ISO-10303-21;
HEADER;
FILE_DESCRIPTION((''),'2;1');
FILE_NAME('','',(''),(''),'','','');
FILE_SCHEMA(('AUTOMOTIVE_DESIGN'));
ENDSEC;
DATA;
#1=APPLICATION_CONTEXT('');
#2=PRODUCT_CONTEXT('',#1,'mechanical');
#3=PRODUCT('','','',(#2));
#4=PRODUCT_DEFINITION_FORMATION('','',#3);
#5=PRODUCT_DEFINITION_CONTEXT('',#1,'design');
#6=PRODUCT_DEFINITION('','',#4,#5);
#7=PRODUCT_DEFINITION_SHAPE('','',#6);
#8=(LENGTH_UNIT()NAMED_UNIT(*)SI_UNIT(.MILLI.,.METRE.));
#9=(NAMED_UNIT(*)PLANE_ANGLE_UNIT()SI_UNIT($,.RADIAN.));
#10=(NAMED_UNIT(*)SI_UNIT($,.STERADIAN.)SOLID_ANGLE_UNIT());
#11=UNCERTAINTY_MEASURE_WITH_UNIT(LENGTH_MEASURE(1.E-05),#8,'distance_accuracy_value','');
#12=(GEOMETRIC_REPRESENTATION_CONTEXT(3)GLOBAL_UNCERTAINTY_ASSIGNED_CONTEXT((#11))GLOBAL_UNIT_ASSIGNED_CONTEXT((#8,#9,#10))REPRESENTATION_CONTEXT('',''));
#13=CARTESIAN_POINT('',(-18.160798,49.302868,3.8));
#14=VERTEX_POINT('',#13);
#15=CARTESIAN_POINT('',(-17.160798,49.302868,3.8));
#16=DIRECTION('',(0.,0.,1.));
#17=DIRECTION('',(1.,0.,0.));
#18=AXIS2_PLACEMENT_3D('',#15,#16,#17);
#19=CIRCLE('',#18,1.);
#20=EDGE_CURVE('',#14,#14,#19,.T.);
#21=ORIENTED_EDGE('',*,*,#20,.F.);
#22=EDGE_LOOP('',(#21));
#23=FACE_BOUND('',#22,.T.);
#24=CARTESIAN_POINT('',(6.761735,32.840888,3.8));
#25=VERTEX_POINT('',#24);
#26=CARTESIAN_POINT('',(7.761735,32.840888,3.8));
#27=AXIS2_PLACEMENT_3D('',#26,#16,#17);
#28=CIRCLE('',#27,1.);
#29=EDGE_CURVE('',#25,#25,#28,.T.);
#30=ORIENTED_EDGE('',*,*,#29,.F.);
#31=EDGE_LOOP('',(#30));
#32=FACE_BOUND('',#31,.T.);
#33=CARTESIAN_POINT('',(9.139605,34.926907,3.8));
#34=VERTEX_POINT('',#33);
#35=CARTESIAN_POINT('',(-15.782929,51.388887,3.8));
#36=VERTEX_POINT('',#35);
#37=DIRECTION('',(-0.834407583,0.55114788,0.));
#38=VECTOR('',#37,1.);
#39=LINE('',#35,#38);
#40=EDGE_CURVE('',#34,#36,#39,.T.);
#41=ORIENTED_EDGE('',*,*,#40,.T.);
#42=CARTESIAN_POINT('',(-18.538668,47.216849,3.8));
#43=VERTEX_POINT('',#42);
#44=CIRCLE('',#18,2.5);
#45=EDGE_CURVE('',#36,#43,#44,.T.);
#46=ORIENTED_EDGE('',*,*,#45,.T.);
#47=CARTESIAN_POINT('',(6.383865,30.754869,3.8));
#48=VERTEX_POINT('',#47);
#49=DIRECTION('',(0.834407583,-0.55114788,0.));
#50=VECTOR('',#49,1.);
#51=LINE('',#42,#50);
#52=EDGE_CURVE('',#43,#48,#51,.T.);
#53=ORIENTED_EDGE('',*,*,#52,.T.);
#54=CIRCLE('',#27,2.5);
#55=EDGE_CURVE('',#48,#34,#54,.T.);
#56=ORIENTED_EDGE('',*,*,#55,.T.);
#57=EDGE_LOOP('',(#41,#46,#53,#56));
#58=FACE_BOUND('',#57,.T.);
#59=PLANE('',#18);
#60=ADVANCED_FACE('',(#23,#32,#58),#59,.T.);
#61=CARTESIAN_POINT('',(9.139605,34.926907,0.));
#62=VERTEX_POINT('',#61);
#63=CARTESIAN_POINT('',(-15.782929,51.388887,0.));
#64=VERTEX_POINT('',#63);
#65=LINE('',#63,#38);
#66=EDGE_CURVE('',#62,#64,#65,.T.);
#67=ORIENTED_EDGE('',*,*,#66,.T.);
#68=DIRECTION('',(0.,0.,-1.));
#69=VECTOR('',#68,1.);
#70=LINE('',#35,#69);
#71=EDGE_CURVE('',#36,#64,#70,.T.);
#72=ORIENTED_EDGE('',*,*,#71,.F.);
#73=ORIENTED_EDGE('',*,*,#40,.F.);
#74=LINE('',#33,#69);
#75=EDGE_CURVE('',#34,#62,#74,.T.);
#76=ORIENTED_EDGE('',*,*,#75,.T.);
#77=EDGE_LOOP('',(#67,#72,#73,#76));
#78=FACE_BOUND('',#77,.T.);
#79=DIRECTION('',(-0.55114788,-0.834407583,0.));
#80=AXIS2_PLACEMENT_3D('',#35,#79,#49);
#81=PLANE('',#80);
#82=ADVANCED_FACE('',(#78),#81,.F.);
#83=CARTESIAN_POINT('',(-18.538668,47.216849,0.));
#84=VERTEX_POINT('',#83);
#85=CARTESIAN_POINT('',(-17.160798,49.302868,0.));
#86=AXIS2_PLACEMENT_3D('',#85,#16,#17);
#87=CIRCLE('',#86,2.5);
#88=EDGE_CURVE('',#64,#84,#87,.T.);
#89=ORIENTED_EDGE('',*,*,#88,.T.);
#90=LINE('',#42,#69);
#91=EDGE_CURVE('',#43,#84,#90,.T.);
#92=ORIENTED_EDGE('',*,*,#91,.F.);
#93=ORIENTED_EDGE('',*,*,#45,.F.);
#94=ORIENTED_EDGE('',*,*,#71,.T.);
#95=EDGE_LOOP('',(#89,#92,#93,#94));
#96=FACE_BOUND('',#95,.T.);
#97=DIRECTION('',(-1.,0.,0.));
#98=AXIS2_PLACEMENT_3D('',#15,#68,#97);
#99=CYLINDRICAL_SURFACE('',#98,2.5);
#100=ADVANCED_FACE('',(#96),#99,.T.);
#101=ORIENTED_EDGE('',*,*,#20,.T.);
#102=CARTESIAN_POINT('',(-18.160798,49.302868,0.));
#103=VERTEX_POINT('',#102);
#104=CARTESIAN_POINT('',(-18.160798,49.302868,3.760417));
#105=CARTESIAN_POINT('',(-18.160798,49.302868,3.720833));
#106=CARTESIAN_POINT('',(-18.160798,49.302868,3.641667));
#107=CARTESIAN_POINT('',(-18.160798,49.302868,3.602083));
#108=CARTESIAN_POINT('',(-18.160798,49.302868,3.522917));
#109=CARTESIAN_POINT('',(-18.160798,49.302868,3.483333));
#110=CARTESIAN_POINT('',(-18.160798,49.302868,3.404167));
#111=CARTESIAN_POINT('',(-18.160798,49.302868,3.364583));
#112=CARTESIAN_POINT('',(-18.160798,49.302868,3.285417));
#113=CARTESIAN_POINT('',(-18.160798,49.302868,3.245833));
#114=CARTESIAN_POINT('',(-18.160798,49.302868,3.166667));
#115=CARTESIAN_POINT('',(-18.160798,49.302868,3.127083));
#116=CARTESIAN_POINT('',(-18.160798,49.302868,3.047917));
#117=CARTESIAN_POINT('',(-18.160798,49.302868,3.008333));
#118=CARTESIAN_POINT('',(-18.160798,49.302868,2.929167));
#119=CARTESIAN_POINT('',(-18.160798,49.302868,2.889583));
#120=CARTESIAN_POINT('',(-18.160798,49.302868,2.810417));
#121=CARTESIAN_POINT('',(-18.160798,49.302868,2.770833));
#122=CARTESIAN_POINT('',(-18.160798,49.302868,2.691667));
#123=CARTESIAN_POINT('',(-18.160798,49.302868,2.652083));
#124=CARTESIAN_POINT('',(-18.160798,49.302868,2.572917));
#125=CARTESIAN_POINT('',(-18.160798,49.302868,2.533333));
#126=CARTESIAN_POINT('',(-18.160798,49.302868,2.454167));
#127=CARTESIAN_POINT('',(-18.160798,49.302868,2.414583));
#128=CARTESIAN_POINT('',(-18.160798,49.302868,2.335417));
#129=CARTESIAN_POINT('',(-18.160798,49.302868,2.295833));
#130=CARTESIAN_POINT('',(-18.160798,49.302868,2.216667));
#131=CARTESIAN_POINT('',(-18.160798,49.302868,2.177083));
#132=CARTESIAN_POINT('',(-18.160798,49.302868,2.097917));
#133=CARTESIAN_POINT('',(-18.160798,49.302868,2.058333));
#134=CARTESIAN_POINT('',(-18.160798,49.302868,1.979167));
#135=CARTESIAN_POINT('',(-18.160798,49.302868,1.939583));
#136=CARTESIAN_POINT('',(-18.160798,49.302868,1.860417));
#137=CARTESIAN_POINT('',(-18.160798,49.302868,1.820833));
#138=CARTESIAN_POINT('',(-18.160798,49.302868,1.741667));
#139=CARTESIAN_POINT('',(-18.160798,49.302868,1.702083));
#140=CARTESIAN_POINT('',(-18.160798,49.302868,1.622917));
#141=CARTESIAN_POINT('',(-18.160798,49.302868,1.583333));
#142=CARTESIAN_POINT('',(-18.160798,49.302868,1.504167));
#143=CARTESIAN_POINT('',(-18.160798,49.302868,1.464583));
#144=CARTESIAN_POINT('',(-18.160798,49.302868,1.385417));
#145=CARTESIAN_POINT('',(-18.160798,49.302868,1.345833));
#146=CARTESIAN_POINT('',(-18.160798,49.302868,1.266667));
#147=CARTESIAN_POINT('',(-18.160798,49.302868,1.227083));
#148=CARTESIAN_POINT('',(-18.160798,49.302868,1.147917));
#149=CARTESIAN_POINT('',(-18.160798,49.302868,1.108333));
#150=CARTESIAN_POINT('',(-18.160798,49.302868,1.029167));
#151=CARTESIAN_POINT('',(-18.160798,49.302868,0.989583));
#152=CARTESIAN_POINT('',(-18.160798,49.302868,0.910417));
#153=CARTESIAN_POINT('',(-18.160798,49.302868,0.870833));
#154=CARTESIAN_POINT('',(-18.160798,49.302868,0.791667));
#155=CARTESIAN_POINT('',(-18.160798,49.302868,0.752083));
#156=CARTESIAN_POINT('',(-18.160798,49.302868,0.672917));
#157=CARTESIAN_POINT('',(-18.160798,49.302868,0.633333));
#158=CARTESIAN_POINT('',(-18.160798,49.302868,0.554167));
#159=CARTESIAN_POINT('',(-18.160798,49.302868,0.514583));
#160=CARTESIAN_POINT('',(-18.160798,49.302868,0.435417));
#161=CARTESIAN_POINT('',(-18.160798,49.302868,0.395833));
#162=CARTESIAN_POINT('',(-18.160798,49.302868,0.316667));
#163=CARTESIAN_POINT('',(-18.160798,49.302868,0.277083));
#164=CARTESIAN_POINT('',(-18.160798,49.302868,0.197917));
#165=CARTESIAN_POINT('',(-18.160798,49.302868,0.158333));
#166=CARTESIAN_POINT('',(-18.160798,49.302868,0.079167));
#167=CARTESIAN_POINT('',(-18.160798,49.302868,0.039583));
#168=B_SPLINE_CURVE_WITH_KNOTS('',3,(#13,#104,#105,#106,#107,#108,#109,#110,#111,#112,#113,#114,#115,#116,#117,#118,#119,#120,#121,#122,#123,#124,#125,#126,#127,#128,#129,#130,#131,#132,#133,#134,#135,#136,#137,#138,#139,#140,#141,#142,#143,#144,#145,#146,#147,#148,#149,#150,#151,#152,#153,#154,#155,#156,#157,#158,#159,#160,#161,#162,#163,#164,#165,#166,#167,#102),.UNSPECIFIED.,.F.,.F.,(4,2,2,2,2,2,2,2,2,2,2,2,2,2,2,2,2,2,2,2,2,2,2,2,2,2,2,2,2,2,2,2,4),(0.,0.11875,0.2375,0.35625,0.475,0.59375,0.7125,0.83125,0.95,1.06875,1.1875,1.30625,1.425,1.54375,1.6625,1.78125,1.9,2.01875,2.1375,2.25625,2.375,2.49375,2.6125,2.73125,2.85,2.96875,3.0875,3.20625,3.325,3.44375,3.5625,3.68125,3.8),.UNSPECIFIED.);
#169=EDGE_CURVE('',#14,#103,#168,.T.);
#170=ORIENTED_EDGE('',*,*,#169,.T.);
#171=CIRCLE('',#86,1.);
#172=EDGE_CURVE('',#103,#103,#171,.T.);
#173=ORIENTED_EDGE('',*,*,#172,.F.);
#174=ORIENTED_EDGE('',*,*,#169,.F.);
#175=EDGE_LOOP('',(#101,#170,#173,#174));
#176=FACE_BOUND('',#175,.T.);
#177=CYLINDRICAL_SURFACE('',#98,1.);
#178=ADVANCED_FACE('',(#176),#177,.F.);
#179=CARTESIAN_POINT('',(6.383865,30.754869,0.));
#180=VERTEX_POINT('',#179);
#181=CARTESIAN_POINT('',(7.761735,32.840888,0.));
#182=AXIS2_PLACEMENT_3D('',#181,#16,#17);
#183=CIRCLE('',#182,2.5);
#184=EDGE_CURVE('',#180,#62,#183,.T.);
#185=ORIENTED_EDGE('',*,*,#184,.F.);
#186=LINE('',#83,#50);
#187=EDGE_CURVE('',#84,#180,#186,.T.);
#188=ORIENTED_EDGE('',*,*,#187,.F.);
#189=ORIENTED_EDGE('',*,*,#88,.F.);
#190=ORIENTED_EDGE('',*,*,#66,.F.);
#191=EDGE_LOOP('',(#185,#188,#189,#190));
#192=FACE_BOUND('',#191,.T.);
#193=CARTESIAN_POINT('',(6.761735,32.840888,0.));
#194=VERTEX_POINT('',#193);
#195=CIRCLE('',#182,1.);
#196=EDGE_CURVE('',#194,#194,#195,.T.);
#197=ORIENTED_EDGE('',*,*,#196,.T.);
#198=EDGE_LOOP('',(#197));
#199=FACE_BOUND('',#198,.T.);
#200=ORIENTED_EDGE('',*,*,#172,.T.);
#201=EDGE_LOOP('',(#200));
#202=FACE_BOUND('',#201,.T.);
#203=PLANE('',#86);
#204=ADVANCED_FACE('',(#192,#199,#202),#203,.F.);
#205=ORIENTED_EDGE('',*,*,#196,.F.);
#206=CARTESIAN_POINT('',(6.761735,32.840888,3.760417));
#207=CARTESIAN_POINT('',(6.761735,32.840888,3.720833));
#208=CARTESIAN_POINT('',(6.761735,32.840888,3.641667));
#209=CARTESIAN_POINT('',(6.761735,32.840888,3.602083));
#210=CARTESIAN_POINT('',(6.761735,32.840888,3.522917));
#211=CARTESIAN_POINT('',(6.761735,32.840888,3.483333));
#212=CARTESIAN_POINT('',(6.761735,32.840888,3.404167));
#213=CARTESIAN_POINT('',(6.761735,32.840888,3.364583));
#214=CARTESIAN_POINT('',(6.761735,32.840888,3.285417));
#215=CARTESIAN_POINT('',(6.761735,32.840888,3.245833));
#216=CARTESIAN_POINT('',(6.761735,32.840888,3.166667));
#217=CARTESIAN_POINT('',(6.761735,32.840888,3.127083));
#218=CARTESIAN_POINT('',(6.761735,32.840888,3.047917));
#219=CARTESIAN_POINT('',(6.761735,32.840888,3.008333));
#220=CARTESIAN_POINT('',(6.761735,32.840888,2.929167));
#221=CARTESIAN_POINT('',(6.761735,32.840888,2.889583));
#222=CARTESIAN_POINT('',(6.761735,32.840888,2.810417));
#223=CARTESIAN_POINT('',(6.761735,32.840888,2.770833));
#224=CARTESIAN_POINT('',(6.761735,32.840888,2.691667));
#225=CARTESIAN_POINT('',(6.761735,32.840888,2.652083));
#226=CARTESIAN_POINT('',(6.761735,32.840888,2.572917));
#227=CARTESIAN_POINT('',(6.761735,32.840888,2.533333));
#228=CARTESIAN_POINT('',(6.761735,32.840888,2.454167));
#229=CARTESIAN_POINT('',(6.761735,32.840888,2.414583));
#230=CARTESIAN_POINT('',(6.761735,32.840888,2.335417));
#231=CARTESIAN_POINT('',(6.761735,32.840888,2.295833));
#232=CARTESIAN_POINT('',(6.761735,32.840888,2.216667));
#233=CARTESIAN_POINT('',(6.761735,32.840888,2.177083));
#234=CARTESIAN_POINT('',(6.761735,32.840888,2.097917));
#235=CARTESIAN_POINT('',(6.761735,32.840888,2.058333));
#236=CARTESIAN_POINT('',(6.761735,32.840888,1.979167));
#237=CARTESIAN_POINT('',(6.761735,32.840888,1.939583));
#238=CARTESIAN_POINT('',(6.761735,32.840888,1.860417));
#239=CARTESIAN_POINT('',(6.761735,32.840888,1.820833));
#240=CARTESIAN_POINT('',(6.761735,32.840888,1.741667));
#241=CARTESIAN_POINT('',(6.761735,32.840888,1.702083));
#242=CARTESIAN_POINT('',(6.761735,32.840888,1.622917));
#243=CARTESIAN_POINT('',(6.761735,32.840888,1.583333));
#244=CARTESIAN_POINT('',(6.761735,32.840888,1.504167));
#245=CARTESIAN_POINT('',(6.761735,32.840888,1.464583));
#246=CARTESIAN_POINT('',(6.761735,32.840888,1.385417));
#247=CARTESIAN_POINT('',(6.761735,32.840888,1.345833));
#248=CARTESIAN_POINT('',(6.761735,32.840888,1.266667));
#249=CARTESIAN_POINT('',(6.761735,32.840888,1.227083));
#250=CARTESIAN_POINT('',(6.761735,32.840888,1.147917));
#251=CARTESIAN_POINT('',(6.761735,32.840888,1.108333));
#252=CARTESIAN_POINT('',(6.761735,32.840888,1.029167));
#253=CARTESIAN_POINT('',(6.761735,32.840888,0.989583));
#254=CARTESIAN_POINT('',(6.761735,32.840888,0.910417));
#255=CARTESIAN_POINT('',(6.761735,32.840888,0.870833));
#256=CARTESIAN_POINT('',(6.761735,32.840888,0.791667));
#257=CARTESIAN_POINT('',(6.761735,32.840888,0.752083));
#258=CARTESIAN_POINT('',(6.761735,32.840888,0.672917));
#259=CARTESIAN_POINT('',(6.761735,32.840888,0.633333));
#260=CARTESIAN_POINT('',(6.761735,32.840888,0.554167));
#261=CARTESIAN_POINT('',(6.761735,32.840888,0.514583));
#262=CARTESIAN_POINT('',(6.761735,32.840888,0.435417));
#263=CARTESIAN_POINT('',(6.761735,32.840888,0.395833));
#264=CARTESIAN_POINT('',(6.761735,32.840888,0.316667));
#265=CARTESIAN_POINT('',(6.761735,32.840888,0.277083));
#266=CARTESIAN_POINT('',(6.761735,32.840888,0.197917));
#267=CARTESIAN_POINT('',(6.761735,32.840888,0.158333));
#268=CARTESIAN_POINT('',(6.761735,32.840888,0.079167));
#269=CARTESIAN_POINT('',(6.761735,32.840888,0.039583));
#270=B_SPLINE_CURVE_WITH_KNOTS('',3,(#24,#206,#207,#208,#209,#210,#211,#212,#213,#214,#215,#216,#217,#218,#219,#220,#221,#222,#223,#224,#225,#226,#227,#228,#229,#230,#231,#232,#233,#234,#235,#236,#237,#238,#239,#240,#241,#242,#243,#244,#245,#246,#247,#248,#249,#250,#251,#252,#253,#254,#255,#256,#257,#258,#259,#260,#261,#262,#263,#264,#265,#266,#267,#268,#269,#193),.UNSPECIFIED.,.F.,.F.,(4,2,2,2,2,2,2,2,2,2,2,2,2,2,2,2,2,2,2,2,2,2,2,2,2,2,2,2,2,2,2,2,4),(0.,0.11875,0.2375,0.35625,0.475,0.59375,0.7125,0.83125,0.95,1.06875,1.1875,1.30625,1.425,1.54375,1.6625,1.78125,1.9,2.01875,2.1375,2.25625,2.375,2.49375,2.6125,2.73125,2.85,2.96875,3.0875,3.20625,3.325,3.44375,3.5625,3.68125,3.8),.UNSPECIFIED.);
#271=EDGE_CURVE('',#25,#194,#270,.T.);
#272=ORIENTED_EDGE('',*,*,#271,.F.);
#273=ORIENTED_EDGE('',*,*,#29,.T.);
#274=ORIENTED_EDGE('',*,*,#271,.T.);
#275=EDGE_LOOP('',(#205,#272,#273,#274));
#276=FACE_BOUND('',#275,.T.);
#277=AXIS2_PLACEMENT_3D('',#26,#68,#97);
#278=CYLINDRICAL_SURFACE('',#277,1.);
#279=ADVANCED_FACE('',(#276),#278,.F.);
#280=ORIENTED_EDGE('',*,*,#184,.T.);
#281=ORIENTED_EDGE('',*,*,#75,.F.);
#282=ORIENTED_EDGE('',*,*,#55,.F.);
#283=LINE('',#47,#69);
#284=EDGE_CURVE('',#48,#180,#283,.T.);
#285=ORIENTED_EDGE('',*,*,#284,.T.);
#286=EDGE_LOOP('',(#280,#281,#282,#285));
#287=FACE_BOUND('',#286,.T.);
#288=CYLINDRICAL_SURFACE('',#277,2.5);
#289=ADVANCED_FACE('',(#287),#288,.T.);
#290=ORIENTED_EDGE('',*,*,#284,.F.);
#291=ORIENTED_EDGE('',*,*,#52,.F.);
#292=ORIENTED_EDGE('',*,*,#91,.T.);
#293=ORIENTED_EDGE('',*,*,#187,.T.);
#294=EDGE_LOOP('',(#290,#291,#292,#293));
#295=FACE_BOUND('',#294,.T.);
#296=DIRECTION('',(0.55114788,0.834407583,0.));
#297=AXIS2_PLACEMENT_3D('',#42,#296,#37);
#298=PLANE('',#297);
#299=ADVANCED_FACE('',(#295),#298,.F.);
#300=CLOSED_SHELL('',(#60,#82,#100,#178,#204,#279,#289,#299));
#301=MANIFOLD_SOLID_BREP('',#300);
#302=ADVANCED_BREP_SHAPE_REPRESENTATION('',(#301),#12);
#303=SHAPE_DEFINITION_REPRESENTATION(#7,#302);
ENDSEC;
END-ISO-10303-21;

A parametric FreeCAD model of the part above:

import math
import FreeCAD as App
import Part
import Sketcher
Q = App.Units.Quantity

doc = App.newDocument("Part")
params = doc.addObject("Spreadsheet::Sheet", "Params")
for row, (alias, value) in enumerate([
    ("sketch1_diameter", "2 mm"),
    ("sketch1_radius", "2.5 mm"),
    ("pad1_length", "3.8 mm"),
], start=1):
    params.set(f"A{row}", alias)
    params.set(f"B{row}", "=" + value)
    params.setAlias(f"B{row}", alias)

body = doc.addObject("PartDesign::Body", "Body")

sketch1 = doc.addObject("Sketcher::SketchObject", "Sketch")
body.addObject(sketch1)
sketch1.AttachmentSupport = (doc.XY_Plane, [""])
sketch1.MapMode = "FlatFace"
sketch1.addGeometry([
    Part.LineSegment(App.Vector(9.139605, 34.926907, 0), App.Vector(-15.782929, 51.388887, 0)),
    Part.ArcOfCircle(Part.Circle(App.Vector(-17.160798, 49.302868, 0), App.Vector(0, 0, 1), 2.5), math.radians(56.554202), math.radians(236.554202)),
    Part.LineSegment(App.Vector(-18.538668, 47.216849, 0), App.Vector(6.383865, 30.754869, 0)),
    Part.ArcOfCircle(Part.Circle(App.Vector(7.761735, 32.840888, 0), App.Vector(0, 0, 1), 2.5), math.radians(-123.445798), math.radians(56.554202)),
    Part.Circle(App.Vector(7.761735, 32.840888, 0), App.Vector(0, 0, 1), 1),
    Part.Circle(App.Vector(-17.160798, 49.302868, 0), App.Vector(0, 0, 1), 1),
], False)
sketch1.addConstraint([
    Sketcher.Constraint("Tangent", 0, 2, 1, 1),
    Sketcher.Constraint("Tangent", 1, 2, 2, 1),
    Sketcher.Constraint("Tangent", 2, 2, 3, 1),
    Sketcher.Constraint("Tangent", 3, 2, 0, 1),
    Sketcher.Constraint("Coincident", 4, 3, 3, 3),
    Sketcher.Constraint("Coincident", 5, 3, 1, 3),
    Sketcher.Constraint("Equal", 1, 3),
    Sketcher.Constraint("Equal", 4, 5),
    Sketcher.Constraint("Diameter", 4, Q("2 mm")),
    Sketcher.Constraint("Radius", 1, Q("2.5 mm")),
    Sketcher.Constraint("DistanceY", 3, 3, 0, 2, Q("18.547999 mm")),
    Sketcher.Constraint("DistanceX", 1, 3, -1, 1, Q("17.160798 mm")),
    Sketcher.Constraint("DistanceY", -1, 1, 1, 3, Q("49.302868 mm")),
    Sketcher.Constraint("DistanceX", 0, 2, -1, 1, Q("15.782929 mm")),
])
sketch1.setExpression("Constraints[8]", "Params.sketch1_diameter")
sketch1.setExpression("Constraints[9]", "Params.sketch1_radius")
pad1 = doc.addObject("PartDesign::Pad", "Pad")
body.addObject(pad1)
pad1.Profile = sketch1
pad1.setExpression("Length", "Params.pad1_length")

doc.recompute()
